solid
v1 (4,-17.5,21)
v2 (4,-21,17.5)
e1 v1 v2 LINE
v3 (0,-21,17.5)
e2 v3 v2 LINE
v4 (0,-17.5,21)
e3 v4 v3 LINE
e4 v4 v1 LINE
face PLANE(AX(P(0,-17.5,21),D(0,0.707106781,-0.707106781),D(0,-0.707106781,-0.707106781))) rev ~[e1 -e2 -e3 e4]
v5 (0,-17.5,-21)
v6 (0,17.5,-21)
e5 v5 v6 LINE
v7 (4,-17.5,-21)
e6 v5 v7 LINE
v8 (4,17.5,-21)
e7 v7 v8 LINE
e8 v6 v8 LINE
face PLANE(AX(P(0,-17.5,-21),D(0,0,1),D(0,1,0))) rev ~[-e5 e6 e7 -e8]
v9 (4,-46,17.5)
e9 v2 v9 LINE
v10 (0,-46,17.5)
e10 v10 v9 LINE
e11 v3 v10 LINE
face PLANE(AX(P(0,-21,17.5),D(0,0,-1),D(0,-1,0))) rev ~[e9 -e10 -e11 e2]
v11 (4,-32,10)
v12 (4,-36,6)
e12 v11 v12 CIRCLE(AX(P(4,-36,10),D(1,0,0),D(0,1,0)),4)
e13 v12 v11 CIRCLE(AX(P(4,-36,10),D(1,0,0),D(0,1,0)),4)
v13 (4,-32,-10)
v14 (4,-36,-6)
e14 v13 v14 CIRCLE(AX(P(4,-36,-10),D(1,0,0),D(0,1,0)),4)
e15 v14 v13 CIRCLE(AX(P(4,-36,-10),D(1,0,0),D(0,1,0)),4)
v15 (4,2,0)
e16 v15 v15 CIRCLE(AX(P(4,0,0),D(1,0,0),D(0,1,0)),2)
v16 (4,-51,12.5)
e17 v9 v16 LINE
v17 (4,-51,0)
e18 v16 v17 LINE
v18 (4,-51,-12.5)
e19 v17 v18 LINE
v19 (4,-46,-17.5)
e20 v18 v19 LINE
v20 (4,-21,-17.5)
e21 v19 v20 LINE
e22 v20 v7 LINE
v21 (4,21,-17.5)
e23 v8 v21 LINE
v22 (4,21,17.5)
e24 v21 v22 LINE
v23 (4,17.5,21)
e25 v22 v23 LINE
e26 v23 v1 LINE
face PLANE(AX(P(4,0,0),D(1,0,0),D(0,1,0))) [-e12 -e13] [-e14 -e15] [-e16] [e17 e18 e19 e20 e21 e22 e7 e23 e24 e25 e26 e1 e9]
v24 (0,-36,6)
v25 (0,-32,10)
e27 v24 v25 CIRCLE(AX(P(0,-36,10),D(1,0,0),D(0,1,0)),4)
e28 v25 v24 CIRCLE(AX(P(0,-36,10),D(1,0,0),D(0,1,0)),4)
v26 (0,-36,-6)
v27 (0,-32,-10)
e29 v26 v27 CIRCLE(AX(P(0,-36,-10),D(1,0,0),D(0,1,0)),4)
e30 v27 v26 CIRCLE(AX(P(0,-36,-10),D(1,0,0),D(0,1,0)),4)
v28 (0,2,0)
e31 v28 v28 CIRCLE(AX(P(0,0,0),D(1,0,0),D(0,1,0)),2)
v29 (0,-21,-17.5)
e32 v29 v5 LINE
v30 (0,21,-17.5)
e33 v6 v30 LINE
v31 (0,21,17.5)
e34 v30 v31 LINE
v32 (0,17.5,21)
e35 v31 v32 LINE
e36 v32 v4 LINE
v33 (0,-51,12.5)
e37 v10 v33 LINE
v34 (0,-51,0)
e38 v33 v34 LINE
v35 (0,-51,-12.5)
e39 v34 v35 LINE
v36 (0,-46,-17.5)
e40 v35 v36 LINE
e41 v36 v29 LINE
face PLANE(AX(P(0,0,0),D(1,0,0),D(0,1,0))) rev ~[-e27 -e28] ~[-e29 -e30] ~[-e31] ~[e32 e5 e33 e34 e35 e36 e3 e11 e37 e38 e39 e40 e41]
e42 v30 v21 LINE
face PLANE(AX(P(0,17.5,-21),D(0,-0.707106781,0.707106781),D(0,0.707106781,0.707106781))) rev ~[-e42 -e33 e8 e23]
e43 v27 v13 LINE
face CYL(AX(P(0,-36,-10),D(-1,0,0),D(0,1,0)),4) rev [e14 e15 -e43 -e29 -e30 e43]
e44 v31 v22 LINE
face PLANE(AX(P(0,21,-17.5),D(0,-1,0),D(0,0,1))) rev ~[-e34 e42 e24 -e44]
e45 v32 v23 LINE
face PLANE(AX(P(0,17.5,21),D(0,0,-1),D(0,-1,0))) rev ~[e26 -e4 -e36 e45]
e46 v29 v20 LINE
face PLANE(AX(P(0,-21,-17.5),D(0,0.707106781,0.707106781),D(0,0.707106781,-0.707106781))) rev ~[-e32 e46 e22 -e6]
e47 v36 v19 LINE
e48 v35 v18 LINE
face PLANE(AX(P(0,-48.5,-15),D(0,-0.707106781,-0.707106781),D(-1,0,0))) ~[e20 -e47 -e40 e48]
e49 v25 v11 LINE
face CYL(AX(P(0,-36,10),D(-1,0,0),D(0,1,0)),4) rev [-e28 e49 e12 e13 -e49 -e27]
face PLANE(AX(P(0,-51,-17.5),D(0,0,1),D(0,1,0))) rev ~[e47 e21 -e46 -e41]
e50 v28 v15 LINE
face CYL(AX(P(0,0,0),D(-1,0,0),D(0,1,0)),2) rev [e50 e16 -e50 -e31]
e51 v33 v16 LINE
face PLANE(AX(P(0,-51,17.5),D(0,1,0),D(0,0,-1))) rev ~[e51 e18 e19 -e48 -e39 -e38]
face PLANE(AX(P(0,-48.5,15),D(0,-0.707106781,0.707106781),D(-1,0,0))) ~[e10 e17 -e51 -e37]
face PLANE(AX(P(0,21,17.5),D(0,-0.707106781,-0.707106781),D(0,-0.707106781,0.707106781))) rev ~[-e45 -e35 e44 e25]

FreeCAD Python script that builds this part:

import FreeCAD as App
import Part
import Sketcher


def edges_at(feature, points):
    """Names of the edges that pass closest to the given points."""
    edges = feature.Shape.Edges
    near = lambda p: min(range(len(edges)), key=lambda i: edges[i].distToShape(Part.Vertex(*p))[0])
    return sorted({f"Edge{near(p) + 1}" for p in points})


def add_polygon(sketch, points):
    """Adds a closed chain of lines whose ends are joined by coincident constraints."""
    first, n = sketch.GeometryCount, len(points)
    for a, b in zip(points, points[1:] + points[:1]):
        sketch.addGeometry(Part.LineSegment(App.Vector(*a, 0), App.Vector(*b, 0)), False)
    for i in range(n):
        sketch.addConstraint(Sketcher.Constraint("Coincident", first + i, 2, first + (i + 1) % n, 1))

doc = App.newDocument("Part")
body = doc.addObject("PartDesign::Body", "Body")

# Sketch on YZ plane
sketch1 = doc.addObject("Sketcher::SketchObject", "Sketch")
body.addObject(sketch1)
sketch1.AttachmentSupport = (doc.YZ_Plane, [""])
sketch1.MapMode = "FlatFace"
add_polygon(sketch1, [(17.5, 21), (-17.5, 21), (-21, 17.5), (-51, 17.5), (-51, 0), (-51, -17.5), (-21, -17.5), (-17.5, -21), (17.5, -21), (21, -17.5), (21, 17.5)])  # lines 0-10
sketch1.addGeometry(Part.Circle(App.Vector(-36, -10, 0), App.Vector(0, 0, 1), 4), False)  # 11
sketch1.addGeometry(Part.Circle(App.Vector(-36, 10, 0), App.Vector(0, 0, 1), 4), False)  # 12
sketch1.addGeometry(Part.Circle(App.Vector(0, 0, 0), App.Vector(0, 0, 1), 2), False)  # 13
sketch1.addConstraint([
    Sketcher.Constraint("Horizontal", 0),
    Sketcher.Constraint("Horizontal", 2),
    Sketcher.Constraint("Vertical", 3),
    Sketcher.Constraint("Vertical", 4),
    Sketcher.Constraint("Horizontal", 5),
    Sketcher.Constraint("Horizontal", 7),
    Sketcher.Constraint("Vertical", 9),
    Sketcher.Constraint("Coincident", 13, 3, -1, 1),
    Sketcher.Constraint("Equal", 11, 12),
    Sketcher.Constraint("Symmetric", 0, 2, 7, 2, -1, 1),
    Sketcher.Constraint("Symmetric", 1, 2, 8, 2, -1, 1),
    Sketcher.Constraint("Symmetric", 5, 2, 9, 2, -1, 1),
    Sketcher.Constraint("Symmetric", 11, 3, 12, 3, -1),
    Sketcher.Constraint("PointOnObject", 3, 2, -1),
    Sketcher.Constraint("Perpendicular", 1, 6),
    Sketcher.Constraint("Perpendicular", 8, 10),
    Sketcher.Constraint("Horizontal", 5, 2, 8, 2),
    Sketcher.Constraint("Vertical", 0, 2, 6, 2),
    Sketcher.Constraint("Equal", 7, 9),
    Sketcher.Constraint("Diameter", 11, 8.0),
    Sketcher.Constraint("Diameter", 13, 4.0),
    Sketcher.Constraint("DistanceX", 2, 2, 2, 1, 30.0),
    Sketcher.Constraint("DistanceY", 11, 3, -1, 1, 10.0),
    Sketcher.Constraint("DistanceX", 12, 3, 1, 2, 15.0),
    Sketcher.Constraint("DistanceX", 0, 2, 0, 1, 35.0),
    Sketcher.Constraint("DistanceX", 11, 3, -1, 1, 36.0),
])
pad1 = doc.addObject("PartDesign::Pad", "Pad")
body.addObject(pad1)
pad1.Profile = sketch1
pad1.Length = 4
doc.recompute()

chamfer = doc.addObject("PartDesign::Chamfer", "Chamfer")
body.addObject(chamfer)
chamfer.Base = (pad1, edges_at(pad1, [(2, -51, 17.5), (2, -51, -17.5)]))
chamfer.Size = 5

doc.recompute()
